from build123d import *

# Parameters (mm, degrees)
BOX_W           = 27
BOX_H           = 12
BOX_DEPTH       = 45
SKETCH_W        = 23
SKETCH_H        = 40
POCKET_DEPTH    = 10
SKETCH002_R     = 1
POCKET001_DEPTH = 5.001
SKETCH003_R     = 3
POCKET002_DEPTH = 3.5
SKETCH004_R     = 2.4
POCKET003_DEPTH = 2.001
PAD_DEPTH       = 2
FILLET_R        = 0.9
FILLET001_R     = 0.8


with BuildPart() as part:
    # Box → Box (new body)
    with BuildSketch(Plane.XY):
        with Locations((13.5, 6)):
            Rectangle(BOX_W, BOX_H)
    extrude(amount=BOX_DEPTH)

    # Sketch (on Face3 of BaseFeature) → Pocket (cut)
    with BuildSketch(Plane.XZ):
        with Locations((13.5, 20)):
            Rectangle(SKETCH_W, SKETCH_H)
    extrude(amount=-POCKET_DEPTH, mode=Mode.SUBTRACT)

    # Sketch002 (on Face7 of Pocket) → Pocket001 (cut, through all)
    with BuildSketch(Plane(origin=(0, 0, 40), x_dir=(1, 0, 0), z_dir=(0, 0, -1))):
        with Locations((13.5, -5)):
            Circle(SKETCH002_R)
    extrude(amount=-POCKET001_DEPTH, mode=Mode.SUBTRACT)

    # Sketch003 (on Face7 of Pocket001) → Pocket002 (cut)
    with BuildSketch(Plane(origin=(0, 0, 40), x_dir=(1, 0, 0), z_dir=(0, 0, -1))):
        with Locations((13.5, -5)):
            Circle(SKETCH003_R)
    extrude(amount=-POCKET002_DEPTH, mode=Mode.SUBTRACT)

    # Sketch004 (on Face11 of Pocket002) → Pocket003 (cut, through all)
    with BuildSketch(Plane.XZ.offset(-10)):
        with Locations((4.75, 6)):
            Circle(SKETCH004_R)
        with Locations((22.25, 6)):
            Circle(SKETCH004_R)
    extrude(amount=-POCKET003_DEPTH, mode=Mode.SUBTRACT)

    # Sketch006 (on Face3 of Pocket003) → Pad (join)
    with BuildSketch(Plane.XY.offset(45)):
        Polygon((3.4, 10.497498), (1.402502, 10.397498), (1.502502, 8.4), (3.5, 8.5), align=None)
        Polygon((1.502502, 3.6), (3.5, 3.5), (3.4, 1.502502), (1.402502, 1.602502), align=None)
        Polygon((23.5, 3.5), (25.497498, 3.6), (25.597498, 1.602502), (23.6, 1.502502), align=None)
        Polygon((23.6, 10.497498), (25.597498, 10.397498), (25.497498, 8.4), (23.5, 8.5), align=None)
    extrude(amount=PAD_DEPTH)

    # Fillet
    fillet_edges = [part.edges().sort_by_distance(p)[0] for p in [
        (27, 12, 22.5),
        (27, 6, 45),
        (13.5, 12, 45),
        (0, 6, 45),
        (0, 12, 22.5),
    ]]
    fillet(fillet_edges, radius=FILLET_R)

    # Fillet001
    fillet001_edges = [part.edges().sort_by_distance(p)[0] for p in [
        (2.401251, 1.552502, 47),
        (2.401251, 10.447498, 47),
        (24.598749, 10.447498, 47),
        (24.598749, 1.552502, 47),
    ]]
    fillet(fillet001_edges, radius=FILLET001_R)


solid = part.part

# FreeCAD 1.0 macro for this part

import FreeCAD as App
import Part
import Sketcher

V = App.Vector


def edges_at(feature, points):
    """Names of the edges that pass closest to the given points."""
    edges = feature.Shape.Edges
    near = lambda p: min(range(len(edges)), key=lambda i: edges[i].distToShape(Part.Vertex(*p))[0])
    return sorted({f"Edge{near(p) + 1}" for p in points})

doc = App.newDocument("Part")
params = doc.addObject("Spreadsheet::Sheet", "Params")
for row, (alias, value) in enumerate([
    ("sketch1_width", "27 mm"),
    ("sketch1_height", "12 mm"),
    ("pad1_length", "45 mm"),
    ("sketch2_width", "23 mm"),
    ("sketch2_height", "40 mm"),
    ("pocket1_length", "10 mm"),
    ("sketch3_diameter", "2 mm"),
    ("sketch4_diameter", "6 mm"),
    ("pocket3_length", "3.5 mm"),
    ("sketch5_diameter", "4.8 mm"),
    ("sketch6_length", "2 mm"),
    ("pad2_length", "2 mm"),
    ("fillet_radius", "0.9 mm"),
    ("fillet2_radius", "0.8 mm"),
], start=1):
    params.set(f"A{row}", alias)
    params.set(f"B{row}", "=" + value)
    params.setAlias(f"B{row}", alias)

body = doc.addObject("PartDesign::Body", "Body")

# Sketch on XY plane
sketch1 = body.newObject("Sketcher::SketchObject", "Sketch")
sketch1.AttachmentSupport = (doc.getObject("XY_Plane"), [""])
sketch1.MapMode = "FlatFace"
sketch1.addGeometry(Part.LineSegment(V(0, 12, 0), V(0, 0, 0)), False)
sketch1.addGeometry(Part.LineSegment(V(0, 0, 0), V(27, 0, 0)), False)
sketch1.addGeometry(Part.LineSegment(V(27, 0, 0), V(27, 12, 0)), False)
sketch1.addGeometry(Part.LineSegment(V(27, 12, 0), V(0, 12, 0)), False)
sketch1.addConstraint(Sketcher.Constraint("Coincident", 0, 2, 1, 1))
sketch1.addConstraint(Sketcher.Constraint("Coincident", 1, 2, 2, 1))
sketch1.addConstraint(Sketcher.Constraint("Coincident", 2, 2, 3, 1))
sketch1.addConstraint(Sketcher.Constraint("Coincident", 3, 2, 0, 1))
sketch1.addConstraint(Sketcher.Constraint("Vertical", 0))
sketch1.addConstraint(Sketcher.Constraint("Horizontal", 1))
sketch1.addConstraint(Sketcher.Constraint("Vertical", 2))
sketch1.addConstraint(Sketcher.Constraint("Horizontal", 3))
sketch1.addConstraint(Sketcher.Constraint("Coincident", 0, 2, -1, 1))
sketch1.addConstraint(Sketcher.Constraint("DistanceX", 1, 1, 1, 2, 27.0))
sketch1.addConstraint(Sketcher.Constraint("DistanceY", 0, 2, 0, 1, 12.0))
sketch1.setExpression("Constraints[9]", "Params.sketch1_width")
sketch1.setExpression("Constraints[10]", "Params.sketch1_height")
pad1 = body.newObject("PartDesign::Pad", "Pad")
pad1.Profile = sketch1
pad1.setExpression("Length", "Params.pad1_length")

# Sketch on XZ plane
sketch2 = body.newObject("Sketcher::SketchObject", "Sketch001")
sketch2.AttachmentSupport = (doc.getObject("XZ_Plane"), [""])
sketch2.MapMode = "FlatFace"
sketch2.addGeometry(Part.LineSegment(V(2, 40, 0), V(2, 0, 0)), False)
sketch2.addGeometry(Part.LineSegment(V(2, 0, 0), V(25, 0, 0)), False)
sketch2.addGeometry(Part.LineSegment(V(25, 0, 0), V(25, 40, 0)), False)
sketch2.addGeometry(Part.LineSegment(V(25, 40, 0), V(2, 40, 0)), False)
sketch2.addConstraint(Sketcher.Constraint("Coincident", 0, 2, 1, 1))
sketch2.addConstraint(Sketcher.Constraint("Coincident", 1, 2, 2, 1))
sketch2.addConstraint(Sketcher.Constraint("Coincident", 2, 2, 3, 1))
sketch2.addConstraint(Sketcher.Constraint("Coincident", 3, 2, 0, 1))
sketch2.addConstraint(Sketcher.Constraint("Vertical", 0))
sketch2.addConstraint(Sketcher.Constraint("Horizontal", 1))
sketch2.addConstraint(Sketcher.Constraint("Vertical", 2))
sketch2.addConstraint(Sketcher.Constraint("Horizontal", 3))
sketch2.addConstraint(Sketcher.Constraint("PointOnObject", 0, 2, -1))
sketch2.addConstraint(Sketcher.Constraint("DistanceX", 1, 1, 1, 2, 23.0))
sketch2.addConstraint(Sketcher.Constraint("DistanceY", 0, 2, 0, 1, 40.0))
sketch2.addConstraint(Sketcher.Constraint("DistanceX", -1, 1, 0, 2, 2.0))
sketch2.setExpression("Constraints[9]", "Params.sketch2_width")
sketch2.setExpression("Constraints[10]", "Params.sketch2_height")
pocket1 = body.newObject("PartDesign::Pocket", "Pocket")
pocket1.Profile = sketch2
pocket1.setExpression("Length", "Params.pocket1_length")

# Sketch on XY plane
sketch3 = body.newObject("Sketcher::SketchObject", "Sketch002")
sketch3.AttachmentSupport = (doc.getObject("XY_Plane"), [""])
sketch3.MapMode = "FlatFace"
sketch3.AttachmentOffset = App.Placement(V(0, 0, 40), App.Rotation())
sketch3.addGeometry(Part.Circle(V(13.5, 5, 0), V(0, 0, 1), 1), False)
sketch3.addConstraint(Sketcher.Constraint("Diameter", 0, 2.0))
sketch3.addConstraint(Sketcher.Constraint("DistanceY", -1, 1, 0, 3, 5.0))
sketch3.addConstraint(Sketcher.Constraint("DistanceX", -1, 1, 0, 3, 13.5))
sketch3.setExpression("Constraints[0]", "Params.sketch3_diameter")
pocket2 = body.newObject("PartDesign::Pocket", "Pocket001")
pocket2.Profile = sketch3
pocket2.Type = "ThroughAll"
pocket2.Reversed = True

# Sketch on XY plane
sketch4 = body.newObject("Sketcher::SketchObject", "Sketch003")
sketch4.AttachmentSupport = (doc.getObject("XY_Plane"), [""])
sketch4.MapMode = "FlatFace"
sketch4.AttachmentOffset = App.Placement(V(0, 0, 40), App.Rotation())
sketch4.addGeometry(Part.Circle(V(13.5, 5, 0), V(0, 0, 1), 3), False)
sketch4.addConstraint(Sketcher.Constraint("Diameter", 0, 6.0))
sketch4.addConstraint(Sketcher.Constraint("DistanceY", -1, 1, 0, 3, 5.0))
sketch4.addConstraint(Sketcher.Constraint("DistanceX", -1, 1, 0, 3, 13.5))
sketch4.setExpression("Constraints[0]", "Params.sketch4_diameter")
pocket3 = body.newObject("PartDesign::Pocket", "Pocket002")
pocket3.Profile = sketch4
pocket3.setExpression("Length", "Params.pocket3_length")
pocket3.Reversed = True

# Sketch on XZ plane
sketch5 = body.newObject("Sketcher::SketchObject", "Sketch004")
sketch5.AttachmentSupport = (doc.getObject("XZ_Plane"), [""])
sketch5.MapMode = "FlatFace"
sketch5.AttachmentOffset = App.Placement(V(0, 0, -10), App.Rotation())
sketch5.addGeometry(Part.Circle(V(4.75, 6, 0), V(0, 0, 1), 2.4), False)
sketch5.addGeometry(Part.Circle(V(22.25, 6, 0), V(0, 0, 1), 2.4), False)
sketch5.addConstraint(Sketcher.Constraint("Equal", 0, 1))
sketch5.addConstraint(Sketcher.Constraint("Horizontal", 0, 3, 1, 3))
sketch5.addConstraint(Sketcher.Constraint("Diameter", 0, 4.8))
sketch5.addConstraint(Sketcher.Constraint("DistanceY", -1, 1, 0, 3, 6.0))
sketch5.addConstraint(Sketcher.Constraint("DistanceX", 0, 3, 1, 3, 17.5))
sketch5.addConstraint(Sketcher.Constraint("DistanceX", -1, 1, 0, 3, 4.75))
sketch5.setExpression("Constraints[2]", "Params.sketch5_diameter")
pocket4 = body.newObject("PartDesign::Pocket", "Pocket003")
pocket4.Profile = sketch5
pocket4.Type = "ThroughAll"

# Sketch on XY plane
sketch6 = body.newObject("Sketcher::SketchObject", "Sketch005")
sketch6.AttachmentSupport = (doc.getObject("XY_Plane"), [""])
sketch6.MapMode = "FlatFace"
sketch6.AttachmentOffset = App.Placement(V(0, 0, 45), App.Rotation())
sketch6.addGeometry(Part.LineSegment(V(3.4, 10.497498, 0), V(1.402502, 10.397498, 0)), False)
sketch6.addGeometry(Part.LineSegment(V(1.402502, 10.397498, 0), V(1.502502, 8.4, 0)), False)
sketch6.addGeometry(Part.LineSegment(V(1.502502, 8.4, 0), V(3.5, 8.5, 0)), False)
sketch6.addGeometry(Part.LineSegment(V(3.5, 8.5, 0), V(3.4, 10.497498, 0)), False)
sketch6.addGeometry(Part.LineSegment(V(3.5, 3.5, 0), V(1.502502, 3.6, 0)), False)
sketch6.addGeometry(Part.LineSegment(V(1.502502, 3.6, 0), V(1.402502, 1.602502, 0)), False)
sketch6.addGeometry(Part.LineSegment(V(1.402502, 1.602502, 0), V(3.4, 1.502502, 0)), False)
sketch6.addGeometry(Part.LineSegment(V(3.4, 1.502502, 0), V(3.5, 3.5, 0)), False)
sketch6.addGeometry(Part.LineSegment(V(25.497498, 3.6, 0), V(23.5, 3.5, 0)), False)
sketch6.addGeometry(Part.LineSegment(V(23.5, 3.5, 0), V(23.6, 1.502502, 0)), False)
sketch6.addGeometry(Part.LineSegment(V(23.6, 1.502502, 0), V(25.597498, 1.602502, 0)), False)
sketch6.addGeometry(Part.LineSegment(V(25.597498, 1.602502, 0), V(25.497498, 3.6, 0)), False)
sketch6.addGeometry(Part.LineSegment(V(25.597498, 10.397498, 0), V(23.6, 10.497498, 0)), False)
sketch6.addGeometry(Part.LineSegment(V(23.6, 10.497498, 0), V(23.5, 8.5, 0)), False)
sketch6.addGeometry(Part.LineSegment(V(23.5, 8.5, 0), V(25.497498, 8.4, 0)), False)
sketch6.addGeometry(Part.LineSegment(V(25.497498, 8.4, 0), V(25.597498, 10.397498, 0)), False)
sketch6.addConstraint(Sketcher.Constraint("Coincident", 0, 2, 1, 1))
sketch6.addConstraint(Sketcher.Constraint("Coincident", 1, 2, 2, 1))
sketch6.addConstraint(Sketcher.Constraint("Coincident", 2, 2, 3, 1))
sketch6.addConstraint(Sketcher.Constraint("Coincident", 3, 2, 0, 1))
sketch6.addConstraint(Sketcher.Constraint("Coincident", 4, 2, 5, 1))
sketch6.addConstraint(Sketcher.Constraint("Coincident", 5, 2, 6, 1))
sketch6.addConstraint(Sketcher.Constraint("Coincident", 6, 2, 7, 1))
sketch6.addConstraint(Sketcher.Constraint("Coincident", 7, 2, 4, 1))
sketch6.addConstraint(Sketcher.Constraint("Coincident", 8, 2, 9, 1))
sketch6.addConstraint(Sketcher.Constraint("Coincident", 9, 2, 10, 1))
sketch6.addConstraint(Sketcher.Constraint("Coincident", 10, 2, 11, 1))
sketch6.addConstraint(Sketcher.Constraint("Coincident", 11, 2, 8, 1))
sketch6.addConstraint(Sketcher.Constraint("Coincident", 12, 2, 13, 1))
sketch6.addConstraint(Sketcher.Constraint("Coincident", 13, 2, 14, 1))
sketch6.addConstraint(Sketcher.Constraint("Coincident", 14, 2, 15, 1))
sketch6.addConstraint(Sketcher.Constraint("Coincident", 15, 2, 12, 1))
sketch6.addConstraint(Sketcher.Constraint("Perpendicular", 0, 1))
sketch6.addConstraint(Sketcher.Constraint("Perpendicular", 1, 2))
sketch6.addConstraint(Sketcher.Constraint("Perpendicular", 2, 3))
sketch6.addConstraint(Sketcher.Constraint("Perpendicular", 4, 5))
sketch6.addConstraint(Sketcher.Constraint("Perpendicular", 5, 6))
sketch6.addConstraint(Sketcher.Constraint("Perpendicular", 6, 7))
sketch6.addConstraint(Sketcher.Constraint("Perpendicular", 3, 8))
sketch6.addConstraint(Sketcher.Constraint("Perpendicular", 8, 9))
sketch6.addConstraint(Sketcher.Constraint("Perpendicular", 9, 10))
sketch6.addConstraint(Sketcher.Constraint("Perpendicular", 10, 11))
sketch6.addConstraint(Sketcher.Constraint("Perpendicular", 7, 12))
sketch6.addConstraint(Sketcher.Constraint("Perpendicular", 12, 13))
sketch6.addConstraint(Sketcher.Constraint("Perpendicular", 13, 14))
sketch6.addConstraint(Sketcher.Constraint("Perpendicular", 14, 15))
sketch6.addConstraint(Sketcher.Constraint("Horizontal", 7, 2, 8, 2))
sketch6.addConstraint(Sketcher.Constraint("Horizontal", 6, 2, 9, 2))
sketch6.addConstraint(Sketcher.Constraint("Horizontal", 5, 2, 10, 2))
sketch6.addConstraint(Sketcher.Constraint("Horizontal", 3, 2, 12, 2))
sketch6.addConstraint(Sketcher.Constraint("Horizontal", 2, 2, 13, 2))
sketch6.addConstraint(Sketcher.Constraint("Horizontal", 1, 2, 14, 2))
sketch6.addConstraint(Sketcher.Constraint("Vertical", 1, 2, 4, 2))
sketch6.addConstraint(Sketcher.Constraint("Vertical", 0, 2, 5, 2))
sketch6.addConstraint(Sketcher.Constraint("Vertical", 3, 2, 6, 2))
sketch6.addConstraint(Sketcher.Constraint("Vertical", 9, 2, 12, 2))
sketch6.addConstraint(Sketcher.Constraint("Vertical", 8, 2, 13, 2))
sketch6.addConstraint(Sketcher.Constraint("Equal", 0, 1))
sketch6.addConstraint(Sketcher.Constraint("Distance", 0, 2.0))
sketch6.addConstraint(Sketcher.Constraint("DistanceY", 7, 2, 2, 2, 5.0))
sketch6.addConstraint(Sketcher.Constraint("DistanceX", 7, 2, 8, 2, 20.0))
sketch6.addConstraint(Sketcher.Constraint("DistanceY", -1, 1, 1, 2, 8.4))
sketch6.addConstraint(Sketcher.Constraint("DistanceX", -1, 1, 2, 2, 3.5))
sketch6.addConstraint(Sketcher.Constraint("DistanceY", -1, 1, 2, 2, 8.5))
sketch6.setExpression("Constraints[42]", "Params.sketch6_length")
pad2 = body.newObject("PartDesign::Pad", "Pad001")
pad2.Profile = sketch6
pad2.setExpression("Length", "Params.pad2_length")
doc.recompute()

fillet = body.newObject("PartDesign::Fillet", "Fillet")
fillet.Base = (pad2, edges_at(pad2, [
    (27, 12, 22.5),
    (27, 6, 45),
    (13.5, 12, 45),
    (0, 6, 45),
    (0, 12, 22.5),
]))
fillet.setExpression("Radius", "Params.fillet_radius")
doc.recompute()

fillet2 = body.newObject("PartDesign::Fillet", "Fillet001")
fillet2.Base = (fillet, edges_at(fillet, [
    (2.401, 1.553, 47),
    (2.401, 10.447, 47),
    (24.599, 10.447, 47),
    (24.599, 1.553, 47),
]))
fillet2.setExpression("Radius", "Params.fillet2_radius")

doc.recompute()
